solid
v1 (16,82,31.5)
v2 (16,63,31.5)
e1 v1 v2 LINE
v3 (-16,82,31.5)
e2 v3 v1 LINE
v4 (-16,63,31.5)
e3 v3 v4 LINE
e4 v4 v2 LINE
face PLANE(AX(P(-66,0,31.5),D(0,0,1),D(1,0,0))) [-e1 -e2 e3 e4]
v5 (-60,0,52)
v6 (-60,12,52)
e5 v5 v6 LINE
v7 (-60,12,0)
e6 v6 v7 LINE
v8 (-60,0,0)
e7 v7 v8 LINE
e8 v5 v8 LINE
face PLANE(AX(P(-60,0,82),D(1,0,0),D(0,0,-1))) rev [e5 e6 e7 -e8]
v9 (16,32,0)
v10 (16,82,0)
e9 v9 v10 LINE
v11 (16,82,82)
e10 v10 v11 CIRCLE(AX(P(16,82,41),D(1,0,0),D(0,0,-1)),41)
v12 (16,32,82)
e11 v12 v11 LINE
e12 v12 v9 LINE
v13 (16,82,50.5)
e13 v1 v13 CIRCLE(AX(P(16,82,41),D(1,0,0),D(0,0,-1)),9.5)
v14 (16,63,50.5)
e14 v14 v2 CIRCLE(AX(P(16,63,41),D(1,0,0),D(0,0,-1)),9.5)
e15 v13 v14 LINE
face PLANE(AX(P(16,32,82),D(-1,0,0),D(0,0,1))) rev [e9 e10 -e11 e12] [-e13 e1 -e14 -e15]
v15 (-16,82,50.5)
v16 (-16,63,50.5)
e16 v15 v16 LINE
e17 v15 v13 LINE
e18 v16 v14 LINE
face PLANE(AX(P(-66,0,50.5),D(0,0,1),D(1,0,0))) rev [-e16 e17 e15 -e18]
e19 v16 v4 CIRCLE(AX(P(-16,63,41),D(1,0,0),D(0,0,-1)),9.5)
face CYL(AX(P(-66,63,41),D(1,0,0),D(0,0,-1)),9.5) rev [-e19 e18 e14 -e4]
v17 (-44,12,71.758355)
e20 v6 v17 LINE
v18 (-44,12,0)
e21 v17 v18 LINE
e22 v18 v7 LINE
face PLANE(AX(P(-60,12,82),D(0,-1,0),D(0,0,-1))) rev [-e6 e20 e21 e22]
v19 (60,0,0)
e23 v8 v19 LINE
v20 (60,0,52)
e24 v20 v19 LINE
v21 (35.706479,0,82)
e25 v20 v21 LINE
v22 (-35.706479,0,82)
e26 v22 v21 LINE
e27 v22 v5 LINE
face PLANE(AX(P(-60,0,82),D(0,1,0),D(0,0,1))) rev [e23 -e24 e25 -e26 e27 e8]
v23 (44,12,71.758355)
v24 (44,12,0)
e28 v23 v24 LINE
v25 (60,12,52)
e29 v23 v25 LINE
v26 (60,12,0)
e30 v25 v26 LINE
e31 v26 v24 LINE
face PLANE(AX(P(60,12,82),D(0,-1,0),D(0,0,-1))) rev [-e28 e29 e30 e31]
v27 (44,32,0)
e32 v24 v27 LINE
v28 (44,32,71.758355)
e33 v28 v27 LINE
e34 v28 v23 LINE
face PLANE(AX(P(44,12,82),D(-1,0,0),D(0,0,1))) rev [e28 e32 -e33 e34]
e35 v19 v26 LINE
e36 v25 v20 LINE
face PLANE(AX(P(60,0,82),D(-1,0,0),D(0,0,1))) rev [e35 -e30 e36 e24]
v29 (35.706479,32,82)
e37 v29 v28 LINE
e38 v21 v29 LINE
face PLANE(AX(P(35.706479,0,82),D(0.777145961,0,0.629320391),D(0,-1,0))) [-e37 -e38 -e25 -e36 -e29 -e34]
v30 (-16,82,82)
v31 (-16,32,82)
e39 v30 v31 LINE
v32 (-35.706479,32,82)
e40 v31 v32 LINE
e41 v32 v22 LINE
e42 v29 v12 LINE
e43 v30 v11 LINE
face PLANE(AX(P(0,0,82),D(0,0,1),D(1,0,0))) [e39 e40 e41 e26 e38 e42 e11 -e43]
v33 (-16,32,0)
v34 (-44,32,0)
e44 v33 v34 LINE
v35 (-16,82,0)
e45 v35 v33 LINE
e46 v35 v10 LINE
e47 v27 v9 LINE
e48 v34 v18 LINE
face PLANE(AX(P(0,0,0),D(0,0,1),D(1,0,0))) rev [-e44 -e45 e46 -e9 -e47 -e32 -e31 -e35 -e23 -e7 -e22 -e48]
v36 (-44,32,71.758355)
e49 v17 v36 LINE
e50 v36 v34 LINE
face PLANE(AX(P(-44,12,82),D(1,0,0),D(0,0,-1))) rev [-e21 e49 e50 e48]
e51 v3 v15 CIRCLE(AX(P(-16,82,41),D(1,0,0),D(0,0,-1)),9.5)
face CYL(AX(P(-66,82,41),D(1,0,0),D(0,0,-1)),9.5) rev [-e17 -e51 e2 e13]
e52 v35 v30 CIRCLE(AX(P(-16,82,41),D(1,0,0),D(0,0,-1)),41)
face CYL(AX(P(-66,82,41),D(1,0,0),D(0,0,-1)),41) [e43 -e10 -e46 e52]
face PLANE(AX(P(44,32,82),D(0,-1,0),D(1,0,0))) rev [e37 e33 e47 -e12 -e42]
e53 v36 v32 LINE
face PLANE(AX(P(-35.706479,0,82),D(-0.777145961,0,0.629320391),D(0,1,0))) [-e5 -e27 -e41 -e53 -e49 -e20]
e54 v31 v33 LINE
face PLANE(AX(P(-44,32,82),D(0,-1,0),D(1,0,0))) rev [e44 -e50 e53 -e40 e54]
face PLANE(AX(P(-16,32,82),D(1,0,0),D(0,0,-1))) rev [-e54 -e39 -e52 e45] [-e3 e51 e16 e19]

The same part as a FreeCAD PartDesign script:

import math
import FreeCAD as App
import Part
import Sketcher
Q = App.Units.Quantity


def edges_at(feature, points):
    """Names of the edges that pass closest to the given points."""
    edges = feature.Shape.Edges
    near = lambda p: min(range(len(edges)), key=lambda i: edges[i].distToShape(Part.Vertex(*p))[0])
    return sorted({f"Edge{near(p) + 1}" for p in points})

doc = App.newDocument("Part")
params = doc.addObject("Spreadsheet::Sheet", "Params")
for row, (alias, value) in enumerate([
    ("sketch1_width", "120 mm"),
    ("sketch1_width2", "16 mm"),
    ("sketch1_width3", "28 mm"),
    ("sketch1_height", "12 mm"),
    ("sketch1_height2", "20 mm"),
    ("pad1_length", "82 mm"),
    ("chamfer_size", "30 mm"),
    ("chamfer_size2", "24.293521 mm"),
    ("chamfer2_size", "30 mm"),
    ("chamfer2_size2", "24.293521 mm"),
    ("sketch2_radius", "41 mm"),
    ("sketch2_radius2", "9.5 mm"),
    ("sketch2_width", "19 mm"),
    ("pocket1_length", "82 mm"),
], start=1):
    params.set(f"A{row}", alias)
    params.set(f"B{row}", "=" + value)
    params.setAlias(f"B{row}", alias)

body = doc.addObject("PartDesign::Body", "Body")

# Sketch on XY plane
sketch1 = body.newObject("Sketcher::SketchObject", "Sketch")
sketch1.AttachmentSupport = (doc.getObject("XY_Plane"), [""])
sketch1.MapMode = "FlatFace"
sketch1.addGeometry([
    Part.LineSegment(App.Vector(-60, 0, 0), App.Vector(60, 0, 0)),  # 0
    Part.LineSegment(App.Vector(60, 0, 0), App.Vector(60, 12, 0)),  # 1
    Part.LineSegment(App.Vector(60, 12, 0), App.Vector(44, 12, 0)),  # 2
    Part.LineSegment(App.Vector(44, 12, 0), App.Vector(44, 32, 0)),  # 3
    Part.LineSegment(App.Vector(44, 32, 0), App.Vector(16, 32, 0)),  # 4
    Part.LineSegment(App.Vector(16, 32, 0), App.Vector(16, 123, 0)),  # 5
    Part.LineSegment(App.Vector(16, 123, 0), App.Vector(-16, 123, 0)),  # 6
    Part.LineSegment(App.Vector(-16, 123, 0), App.Vector(-16, 32, 0)),  # 7
    Part.LineSegment(App.Vector(-16, 32, 0), App.Vector(-44, 32, 0)),  # 8
    Part.LineSegment(App.Vector(-44, 32, 0), App.Vector(-44, 12, 0)),  # 9
    Part.LineSegment(App.Vector(-44, 12, 0), App.Vector(-60, 12, 0)),  # 10
    Part.LineSegment(App.Vector(-60, 12, 0), App.Vector(-60, 0, 0)),  # 11
], False)
sketch1.addConstraint([
    Sketcher.Constraint("Coincident", 0, 2, 1, 1),
    Sketcher.Constraint("Coincident", 1, 2, 2, 1),
    Sketcher.Constraint("Coincident", 2, 2, 3, 1),
    Sketcher.Constraint("Coincident", 3, 2, 4, 1),
    Sketcher.Constraint("Coincident", 4, 2, 5, 1),
    Sketcher.Constraint("Coincident", 5, 2, 6, 1),
    Sketcher.Constraint("Coincident", 6, 2, 7, 1),
    Sketcher.Constraint("Coincident", 7, 2, 8, 1),
    Sketcher.Constraint("Coincident", 8, 2, 9, 1),
    Sketcher.Constraint("Coincident", 9, 2, 10, 1),
    Sketcher.Constraint("Coincident", 10, 2, 11, 1),
    Sketcher.Constraint("Coincident", 11, 2, 0, 1),
    Sketcher.Constraint("Horizontal", 0),
    Sketcher.Constraint("Vertical", 1),
    Sketcher.Constraint("Horizontal", 2),
    Sketcher.Constraint("Vertical", 3),
    Sketcher.Constraint("Horizontal", 4),
    Sketcher.Constraint("Vertical", 5),
    Sketcher.Constraint("Horizontal", 6),
    Sketcher.Constraint("Vertical", 7),
    Sketcher.Constraint("Horizontal", 8),
    Sketcher.Constraint("Vertical", 9),
    Sketcher.Constraint("Horizontal", 10),
    Sketcher.Constraint("Vertical", 11),
    Sketcher.Constraint("Symmetric", 0, 2, 11, 2, -1, 1),
    Sketcher.Constraint("Symmetric", 4, 2, 7, 2, -2),
    Sketcher.Constraint("Symmetric", 2, 2, 9, 2, -2),
    Sketcher.Constraint("DistanceX", 0, 1, 0, 2, Q("120 mm")),
    Sketcher.Constraint("DistanceX", 2, 2, 2, 1, Q("16 mm")),
    Sketcher.Constraint("DistanceX", 4, 2, 4, 1, Q("28 mm")),
    Sketcher.Constraint("DistanceY", 1, 1, 1, 2, Q("12 mm")),
    Sketcher.Constraint("DistanceY", 3, 1, 3, 2, Q("20 mm")),
    Sketcher.Constraint("DistanceY", 5, 1, 5, 2, Q("91 mm")),
])
sketch1.setExpression("Constraints[27]", "Params.sketch1_width")
sketch1.setExpression("Constraints[28]", "Params.sketch1_width2")
sketch1.setExpression("Constraints[29]", "Params.sketch1_width3")
sketch1.setExpression("Constraints[30]", "Params.sketch1_height")
sketch1.setExpression("Constraints[31]", "Params.sketch1_height2")
pad1 = body.newObject("PartDesign::Pad", "Pad")
pad1.Profile = sketch1
pad1.setExpression("Length", "Params.pad1_length")
doc.recompute()

chamfer = body.newObject("PartDesign::Chamfer", "Chamfer")
chamfer.Base = (pad1, edges_at(pad1, [(60, 6, 82)]))
chamfer.ChamferType = "Two distances"
chamfer.setExpression("Size", "Params.chamfer_size")
chamfer.setExpression("Size2", "Params.chamfer_size2")
doc.recompute()

chamfer2 = body.newObject("PartDesign::Chamfer", "Chamfer001")
chamfer2.Base = (chamfer, edges_at(chamfer, [(-60, 6, 82)]))
chamfer2.ChamferType = "Two distances"
chamfer2.setExpression("Size", "Params.chamfer2_size")
chamfer2.setExpression("Size2", "Params.chamfer2_size2")
chamfer2.FlipDirection = True

# Sketch on YZ plane
sketch2 = body.newObject("Sketcher::SketchObject", "Sketch001")
sketch2.AttachmentSupport = (doc.getObject("YZ_Plane"), [""])
sketch2.MapMode = "FlatFace"
sketch2.AttachmentOffset = App.Placement(App.Vector(0, 0, 16), App.Rotation())
sketch2.addGeometry([
    Part.LineSegment(App.Vector(123, 82, 0), App.Vector(82, 82, 0)),  # 0
    Part.ArcOfCircle(Part.Circle(App.Vector(82, 41, 0), App.Vector(0, 0, 1), 41), math.radians(0), math.radians(90)),  # 1
    Part.LineSegment(App.Vector(123, 41, 0), App.Vector(123, 82, 0)),  # 2
    Part.ArcOfCircle(Part.Circle(App.Vector(82, 41, 0), App.Vector(0, 0, 1), 10), math.radians(-90), math.radians(90)),  # 3
    Part.LineSegment(App.Vector(82, 50, 0), App.Vector(63, 50, 0)),  # 4
    Part.ArcOfCircle(Part.Circle(App.Vector(63, 41, 0), App.Vector(0, 0, 1), 10), math.radians(90), math.radians(270)),  # 5
    Part.LineSegment(App.Vector(63, 32, 0), App.Vector(82, 32, 0)),  # 6
    Part.LineSegment(App.Vector(123, 0, 0), App.Vector(123, 41, 0)),  # 7
    Part.ArcOfCircle(Part.Circle(App.Vector(82, 41, 0), App.Vector(0, 0, 1), 41), math.radians(-90), math.radians(0)),  # 8
    Part.LineSegment(App.Vector(82, 0, 0), App.Vector(123, 0, 0)),  # 9
], False)
sketch2.addConstraint([
    Sketcher.Constraint("Tangent", 0, 2, 1, 2),
    Sketcher.Constraint("Tangent", 1, 1, 2, 1),
    Sketcher.Constraint("Coincident", 2, 2, 0, 1),
    Sketcher.Constraint("Tangent", 3, 2, 4, 1),
    Sketcher.Constraint("Tangent", 4, 2, 5, 1),
    Sketcher.Constraint("Tangent", 5, 2, 6, 1),
    Sketcher.Constraint("Tangent", 6, 2, 3, 1),
    Sketcher.Constraint("Tangent", 7, 2, 8, 2),
    Sketcher.Constraint("Tangent", 8, 1, 9, 1),
    Sketcher.Constraint("Coincident", 9, 2, 7, 1),
    Sketcher.Constraint("Horizontal", 0),
    Sketcher.Constraint("Vertical", 2),
    Sketcher.Constraint("Horizontal", 4),
    Sketcher.Constraint("Horizontal", 6),
    Sketcher.Constraint("Vertical", 7),
    Sketcher.Constraint("Horizontal", 9),
    Sketcher.Constraint("Coincident", 3, 3, 1, 3),
    Sketcher.Constraint("Coincident", 8, 3, 1, 3),
    Sketcher.Constraint("Equal", 1, 8),
    Sketcher.Constraint("PointOnObject", 8, 1, -1),
    Sketcher.Constraint("Radius", 1, Q("41 mm")),
    Sketcher.Constraint("Radius", 3, Q("9.5 mm")),
    Sketcher.Constraint("DistanceX", 4, 2, 4, 1, Q("19 mm")),
    Sketcher.Constraint("DistanceX", -1, 1, 1, 3, Q("82 mm")),
])
sketch2.setExpression("Constraints[20]", "Params.sketch2_radius")
sketch2.setExpression("Constraints[21]", "Params.sketch2_radius2")
sketch2.setExpression("Constraints[22]", "Params.sketch2_width")
pocket1 = body.newObject("PartDesign::Pocket", "Pocket")
pocket1.Profile = sketch2
pocket1.setExpression("Length", "Params.pocket1_length")

doc.recompute()
